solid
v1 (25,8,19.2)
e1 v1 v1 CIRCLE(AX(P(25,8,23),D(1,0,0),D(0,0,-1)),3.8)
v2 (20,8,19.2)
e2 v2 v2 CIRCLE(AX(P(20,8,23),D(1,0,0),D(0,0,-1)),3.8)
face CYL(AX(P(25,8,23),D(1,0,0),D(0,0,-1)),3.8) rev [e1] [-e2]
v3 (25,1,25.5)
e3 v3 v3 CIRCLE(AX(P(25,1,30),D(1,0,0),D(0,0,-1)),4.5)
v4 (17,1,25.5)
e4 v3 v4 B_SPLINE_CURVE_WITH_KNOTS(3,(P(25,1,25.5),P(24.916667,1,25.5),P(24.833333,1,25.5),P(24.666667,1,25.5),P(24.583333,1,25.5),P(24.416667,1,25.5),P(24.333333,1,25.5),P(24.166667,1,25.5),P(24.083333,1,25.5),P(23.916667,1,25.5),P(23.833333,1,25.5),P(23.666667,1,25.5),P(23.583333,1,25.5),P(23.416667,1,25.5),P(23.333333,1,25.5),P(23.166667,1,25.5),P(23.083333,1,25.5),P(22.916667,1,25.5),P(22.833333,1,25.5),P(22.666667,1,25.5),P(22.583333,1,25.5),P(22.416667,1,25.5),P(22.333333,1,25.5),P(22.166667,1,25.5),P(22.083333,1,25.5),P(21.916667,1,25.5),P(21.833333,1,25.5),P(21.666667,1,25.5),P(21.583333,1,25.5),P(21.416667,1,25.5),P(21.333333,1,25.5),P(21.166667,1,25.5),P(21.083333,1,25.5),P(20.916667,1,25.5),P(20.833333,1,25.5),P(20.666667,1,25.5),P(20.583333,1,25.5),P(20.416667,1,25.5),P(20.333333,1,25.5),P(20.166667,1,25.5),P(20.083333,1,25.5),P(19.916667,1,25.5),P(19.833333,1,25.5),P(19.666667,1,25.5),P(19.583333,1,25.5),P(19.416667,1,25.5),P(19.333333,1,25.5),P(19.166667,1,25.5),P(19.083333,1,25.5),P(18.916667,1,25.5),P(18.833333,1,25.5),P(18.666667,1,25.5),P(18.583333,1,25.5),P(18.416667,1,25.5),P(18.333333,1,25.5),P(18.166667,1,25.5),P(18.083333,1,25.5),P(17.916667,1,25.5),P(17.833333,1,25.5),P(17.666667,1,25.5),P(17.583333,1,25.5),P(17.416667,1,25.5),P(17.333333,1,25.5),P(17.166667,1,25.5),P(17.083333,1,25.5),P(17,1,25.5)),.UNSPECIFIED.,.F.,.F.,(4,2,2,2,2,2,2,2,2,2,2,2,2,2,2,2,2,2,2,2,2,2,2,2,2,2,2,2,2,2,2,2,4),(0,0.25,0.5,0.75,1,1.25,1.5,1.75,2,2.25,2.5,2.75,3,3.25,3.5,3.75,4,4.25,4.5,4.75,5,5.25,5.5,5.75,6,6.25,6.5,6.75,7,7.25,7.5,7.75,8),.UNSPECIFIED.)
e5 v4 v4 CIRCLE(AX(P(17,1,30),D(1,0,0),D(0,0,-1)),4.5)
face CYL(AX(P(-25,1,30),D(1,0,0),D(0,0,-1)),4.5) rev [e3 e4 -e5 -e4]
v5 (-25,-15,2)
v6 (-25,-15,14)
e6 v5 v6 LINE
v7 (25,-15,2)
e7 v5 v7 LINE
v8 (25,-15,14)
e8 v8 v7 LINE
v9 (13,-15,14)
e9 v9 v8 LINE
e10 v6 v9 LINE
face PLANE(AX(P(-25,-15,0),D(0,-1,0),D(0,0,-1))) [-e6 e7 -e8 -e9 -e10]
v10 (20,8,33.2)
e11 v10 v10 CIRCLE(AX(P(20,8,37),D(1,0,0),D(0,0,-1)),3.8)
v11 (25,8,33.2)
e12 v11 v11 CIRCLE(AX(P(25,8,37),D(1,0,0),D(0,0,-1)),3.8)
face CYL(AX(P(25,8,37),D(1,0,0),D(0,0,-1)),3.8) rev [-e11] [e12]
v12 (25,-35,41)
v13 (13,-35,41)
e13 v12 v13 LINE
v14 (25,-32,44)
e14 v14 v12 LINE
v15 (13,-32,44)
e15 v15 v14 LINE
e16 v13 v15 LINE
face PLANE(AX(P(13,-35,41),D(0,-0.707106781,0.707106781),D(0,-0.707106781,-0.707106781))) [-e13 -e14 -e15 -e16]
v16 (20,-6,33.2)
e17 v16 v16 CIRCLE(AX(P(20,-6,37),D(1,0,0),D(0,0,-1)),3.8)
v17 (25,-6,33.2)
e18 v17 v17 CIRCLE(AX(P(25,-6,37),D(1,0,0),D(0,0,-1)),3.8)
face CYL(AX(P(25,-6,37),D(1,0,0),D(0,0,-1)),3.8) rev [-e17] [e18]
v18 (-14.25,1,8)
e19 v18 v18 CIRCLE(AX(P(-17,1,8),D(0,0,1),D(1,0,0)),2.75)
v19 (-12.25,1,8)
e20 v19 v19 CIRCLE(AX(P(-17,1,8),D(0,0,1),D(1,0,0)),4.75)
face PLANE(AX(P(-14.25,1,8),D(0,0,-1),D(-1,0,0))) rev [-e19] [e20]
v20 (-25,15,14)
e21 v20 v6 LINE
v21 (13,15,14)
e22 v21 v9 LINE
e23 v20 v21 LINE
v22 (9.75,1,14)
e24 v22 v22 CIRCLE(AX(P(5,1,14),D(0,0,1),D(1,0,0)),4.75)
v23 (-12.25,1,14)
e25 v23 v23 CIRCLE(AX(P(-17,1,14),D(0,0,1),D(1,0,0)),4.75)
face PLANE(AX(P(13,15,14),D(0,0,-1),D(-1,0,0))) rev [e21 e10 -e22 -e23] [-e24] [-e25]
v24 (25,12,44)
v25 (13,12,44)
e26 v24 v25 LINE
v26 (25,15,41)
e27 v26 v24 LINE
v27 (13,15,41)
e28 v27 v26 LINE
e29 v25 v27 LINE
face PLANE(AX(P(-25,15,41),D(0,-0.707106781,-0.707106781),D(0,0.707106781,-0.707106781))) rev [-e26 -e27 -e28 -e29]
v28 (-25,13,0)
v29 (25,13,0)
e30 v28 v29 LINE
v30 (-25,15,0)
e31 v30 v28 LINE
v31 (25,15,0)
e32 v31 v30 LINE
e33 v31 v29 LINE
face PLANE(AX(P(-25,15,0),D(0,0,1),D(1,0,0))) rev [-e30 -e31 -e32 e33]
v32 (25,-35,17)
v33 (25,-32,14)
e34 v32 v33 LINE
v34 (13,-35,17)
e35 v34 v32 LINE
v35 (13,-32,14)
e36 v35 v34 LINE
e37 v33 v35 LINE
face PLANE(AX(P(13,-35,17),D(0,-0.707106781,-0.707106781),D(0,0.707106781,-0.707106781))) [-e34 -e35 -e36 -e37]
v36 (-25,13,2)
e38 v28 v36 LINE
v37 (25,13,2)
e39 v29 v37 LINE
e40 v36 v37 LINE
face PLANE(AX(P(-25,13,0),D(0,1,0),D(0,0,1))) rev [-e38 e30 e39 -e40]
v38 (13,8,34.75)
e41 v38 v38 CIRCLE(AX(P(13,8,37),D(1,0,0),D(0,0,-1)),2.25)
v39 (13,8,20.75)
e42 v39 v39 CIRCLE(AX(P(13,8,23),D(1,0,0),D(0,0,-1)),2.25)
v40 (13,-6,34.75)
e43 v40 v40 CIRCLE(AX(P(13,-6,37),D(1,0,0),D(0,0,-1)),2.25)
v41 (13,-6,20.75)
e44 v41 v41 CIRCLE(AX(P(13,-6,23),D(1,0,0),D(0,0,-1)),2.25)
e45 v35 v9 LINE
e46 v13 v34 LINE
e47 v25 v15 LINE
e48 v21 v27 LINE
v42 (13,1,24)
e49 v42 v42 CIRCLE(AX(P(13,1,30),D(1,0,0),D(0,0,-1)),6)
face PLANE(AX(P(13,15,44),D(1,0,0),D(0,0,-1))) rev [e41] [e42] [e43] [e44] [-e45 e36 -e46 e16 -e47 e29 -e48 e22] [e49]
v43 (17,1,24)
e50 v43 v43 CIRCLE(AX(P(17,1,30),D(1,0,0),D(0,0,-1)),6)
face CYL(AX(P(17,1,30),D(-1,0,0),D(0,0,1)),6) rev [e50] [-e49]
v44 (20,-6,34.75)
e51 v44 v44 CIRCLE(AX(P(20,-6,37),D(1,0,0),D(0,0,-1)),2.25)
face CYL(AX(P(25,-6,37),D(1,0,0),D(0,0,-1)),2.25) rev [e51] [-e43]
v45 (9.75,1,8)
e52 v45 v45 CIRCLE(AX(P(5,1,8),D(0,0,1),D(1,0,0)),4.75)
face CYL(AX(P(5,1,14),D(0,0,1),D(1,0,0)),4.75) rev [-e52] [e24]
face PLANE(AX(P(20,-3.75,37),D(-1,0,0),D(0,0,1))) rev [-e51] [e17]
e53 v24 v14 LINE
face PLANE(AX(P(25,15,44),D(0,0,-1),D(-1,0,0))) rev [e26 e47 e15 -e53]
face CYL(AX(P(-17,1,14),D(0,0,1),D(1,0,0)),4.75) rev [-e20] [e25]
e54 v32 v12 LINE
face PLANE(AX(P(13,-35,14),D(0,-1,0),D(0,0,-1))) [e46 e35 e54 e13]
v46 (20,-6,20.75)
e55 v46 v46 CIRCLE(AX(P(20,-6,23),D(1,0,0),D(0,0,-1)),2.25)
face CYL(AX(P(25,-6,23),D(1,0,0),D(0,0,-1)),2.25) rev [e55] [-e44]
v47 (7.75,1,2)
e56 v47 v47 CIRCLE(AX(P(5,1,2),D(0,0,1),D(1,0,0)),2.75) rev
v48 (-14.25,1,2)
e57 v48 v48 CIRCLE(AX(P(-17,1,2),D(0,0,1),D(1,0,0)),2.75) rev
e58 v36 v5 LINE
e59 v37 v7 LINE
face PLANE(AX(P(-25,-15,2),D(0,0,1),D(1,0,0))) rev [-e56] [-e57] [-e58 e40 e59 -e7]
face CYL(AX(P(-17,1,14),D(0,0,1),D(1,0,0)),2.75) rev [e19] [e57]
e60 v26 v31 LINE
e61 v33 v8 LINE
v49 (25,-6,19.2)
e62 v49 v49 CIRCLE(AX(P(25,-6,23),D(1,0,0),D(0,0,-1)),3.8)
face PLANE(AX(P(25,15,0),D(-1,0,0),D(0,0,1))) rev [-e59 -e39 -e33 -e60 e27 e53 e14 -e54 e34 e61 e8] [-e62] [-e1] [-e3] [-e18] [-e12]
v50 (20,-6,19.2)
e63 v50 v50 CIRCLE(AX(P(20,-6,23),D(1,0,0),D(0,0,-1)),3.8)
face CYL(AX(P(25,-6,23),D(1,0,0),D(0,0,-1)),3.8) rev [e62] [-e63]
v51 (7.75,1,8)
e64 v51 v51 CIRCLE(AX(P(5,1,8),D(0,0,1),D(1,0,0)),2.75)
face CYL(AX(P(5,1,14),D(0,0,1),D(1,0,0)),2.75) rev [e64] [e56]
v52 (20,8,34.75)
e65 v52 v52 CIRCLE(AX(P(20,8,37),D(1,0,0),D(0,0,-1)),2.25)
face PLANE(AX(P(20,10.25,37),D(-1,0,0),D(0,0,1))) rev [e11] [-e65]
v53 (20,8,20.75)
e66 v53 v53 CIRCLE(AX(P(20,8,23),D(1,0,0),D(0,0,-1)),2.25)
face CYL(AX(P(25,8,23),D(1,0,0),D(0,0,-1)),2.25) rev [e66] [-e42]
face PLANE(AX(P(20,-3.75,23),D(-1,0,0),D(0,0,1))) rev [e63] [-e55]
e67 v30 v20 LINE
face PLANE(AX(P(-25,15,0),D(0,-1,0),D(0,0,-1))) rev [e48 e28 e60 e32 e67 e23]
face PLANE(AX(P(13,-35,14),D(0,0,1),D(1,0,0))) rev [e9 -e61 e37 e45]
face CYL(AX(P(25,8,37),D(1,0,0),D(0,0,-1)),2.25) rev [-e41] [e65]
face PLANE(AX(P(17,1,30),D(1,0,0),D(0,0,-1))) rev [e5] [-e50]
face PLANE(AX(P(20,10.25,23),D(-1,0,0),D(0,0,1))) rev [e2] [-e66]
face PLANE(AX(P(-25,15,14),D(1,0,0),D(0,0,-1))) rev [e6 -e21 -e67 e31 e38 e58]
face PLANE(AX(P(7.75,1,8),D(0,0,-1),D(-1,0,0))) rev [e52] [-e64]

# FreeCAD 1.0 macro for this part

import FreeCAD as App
import Part
import Sketcher

V = App.Vector
Q = App.Units.Quantity


def edges_at(feature, points):
    """Names of the edges that pass closest to the given points."""
    edges = feature.Shape.Edges
    near = lambda p: min(range(len(edges)), key=lambda i: edges[i].distToShape(Part.Vertex(*p))[0])
    return sorted({f"Edge{near(p) + 1}" for p in points})


def add_polygon(sketch, points):
    """Adds a closed chain of lines whose ends are joined by coincident constraints."""
    first, n = sketch.GeometryCount, len(points)
    for a, b in zip(points, points[1:] + points[:1]):
        sketch.addGeometry(Part.LineSegment(App.Vector(*a, 0), App.Vector(*b, 0)), False)
    for i in range(n):
        sketch.addConstraint(Sketcher.Constraint("Coincident", first + i, 2, first + (i + 1) % n, 1))

doc = App.newDocument("Part")
body = doc.addObject("PartDesign::Body", "Body")

sketch1 = body.newObject("Sketcher::SketchObject", "Sketch")
sketch1.AttachmentSupport = (doc.getObject("XZ_Plane"), [""])
sketch1.MapMode = "FlatFace"
add_polygon(sketch1, [(25, 0), (-25, 0), (-25, 14), (13, 14), (13, 44), (25, 44)])
sketch1.addConstraint(Sketcher.Constraint("Horizontal", 0))
sketch1.addConstraint(Sketcher.Constraint("Vertical", 1))
sketch1.addConstraint(Sketcher.Constraint("Horizontal", 2))
sketch1.addConstraint(Sketcher.Constraint("Vertical", 3))
sketch1.addConstraint(Sketcher.Constraint("Horizontal", 4))
sketch1.addConstraint(Sketcher.Constraint("Vertical", 5))
sketch1.addConstraint(Sketcher.Constraint("Symmetric", 0, 2, 5, 2, -1, 1))
sketch1.addConstraint(Sketcher.Constraint("DistanceX", 0, 2, 0, 1, Q("50 mm")))
sketch1.addConstraint(Sketcher.Constraint("DistanceX", 2, 1, 2, 2, Q("38 mm")))
sketch1.addConstraint(Sketcher.Constraint("DistanceY", 1, 1, 1, 2, Q("14 mm")))
sketch1.addConstraint(Sketcher.Constraint("DistanceY", 3, 1, 3, 2, Q("30 mm")))
pad1 = body.newObject("PartDesign::Pad", "Pad")
pad1.Profile = sketch1
pad1.Length = 30
pad1.Midplane = True

sketch2 = body.newObject("Sketcher::SketchObject", "Sketch001")
sketch2.AttachmentSupport = (doc.getObject("YZ_Plane"), [""])
sketch2.MapMode = "FlatFace"
sketch2.AttachmentOffset = App.Placement(V(0, 0, 13), App.Rotation())
sketch2.addGeometry(Part.Circle(V(1, 30, 0), V(0, 0, 1), 6), False)
sketch2.addConstraint(Sketcher.Constraint("Diameter", 0, Q("12 mm")))
sketch2.addConstraint(Sketcher.Constraint("DistanceX", -1, 1, 0, 3, Q("1 mm")))
sketch2.addConstraint(Sketcher.Constraint("DistanceY", -1, 1, 0, 3, Q("30 mm")))
pocket1 = body.newObject("PartDesign::Pocket", "Pocket")
pocket1.Profile = sketch2
pocket1.Length = 4
pocket1.Reversed = True

sketch3 = body.newObject("Sketcher::SketchObject", "Sketch002")
sketch3.AttachmentSupport = (doc.getObject("YZ_Plane"), [""])
sketch3.MapMode = "FlatFace"
sketch3.AttachmentOffset = App.Placement(V(0, 0, 25), App.Rotation())
sketch3.addGeometry(Part.Circle(V(1, 30, 0), V(0, 0, 1), 4.5), False)
sketch3.addConstraint(Sketcher.Constraint("Diameter", 0, Q("9 mm")))
sketch3.addConstraint(Sketcher.Constraint("DistanceX", -1, 1, 0, 3, Q("1 mm")))
sketch3.addConstraint(Sketcher.Constraint("DistanceY", -1, 1, 0, 3, Q("30 mm")))
pocket2 = body.newObject("PartDesign::Pocket", "Pocket001")
pocket2.Profile = sketch3
pocket2.Type = "ThroughAll"

sketch4 = body.newObject("Sketcher::SketchObject", "Sketch003")
sketch4.AttachmentSupport = (doc.getObject("YZ_Plane"), [""])
sketch4.MapMode = "FlatFace"
sketch4.AttachmentOffset = App.Placement(V(0, 0, 25), App.Rotation())
sketch4.addGeometry(Part.Circle(V(8, 23, 0), V(0, 0, 1), 2.2), False)
sketch4.addGeometry(Part.Circle(V(8, 37, 0), V(0, 0, 1), 2.2), False)
sketch4.addGeometry(Part.Circle(V(-6, 23, 0), V(0, 0, 1), 2.2), False)
sketch4.addGeometry(Part.Circle(V(-6, 37, 0), V(0, 0, 1), 2.2), False)
sketch4.addConstraint(Sketcher.Constraint("Equal", 0, 1))
sketch4.addConstraint(Sketcher.Constraint("Equal", 1, 2))
sketch4.addConstraint(Sketcher.Constraint("Equal", 2, 3))
sketch4.addConstraint(Sketcher.Constraint("Horizontal", 0, 3, 2, 3))
sketch4.addConstraint(Sketcher.Constraint("Horizontal", 1, 3, 3, 3))
sketch4.addConstraint(Sketcher.Constraint("Vertical", 0, 3, 1, 3))
sketch4.addConstraint(Sketcher.Constraint("Vertical", 2, 3, 3, 3))
sketch4.addConstraint(Sketcher.Constraint("Diameter", 0, Q("4.5 mm")))
sketch4.addConstraint(Sketcher.Constraint("DistanceX", -1, 1, 0, 3, Q("8 mm")))
sketch4.addConstraint(Sketcher.Constraint("DistanceY", -1, 1, 0, 3, Q("23 mm")))
sketch4.addConstraint(Sketcher.Constraint("DistanceY", -1, 1, 1, 3, Q("37 mm")))
sketch4.addConstraint(Sketcher.Constraint("DistanceX", 2, 3, -1, 1, Q("6 mm")))
doc.recompute()
hole = body.newObject("PartDesign::Hole", "Hole")
hole.Profile = sketch4
hole.ThreadType = "None"
hole.Diameter = 4.5
hole.DepthType = "Dimension"
hole.Depth = 100
hole.DrillPoint = "Flat"
hole.HoleCutType = "Counterbore"
hole.HoleCutDiameter = 7.6
hole.HoleCutDepth = 5

sketch5 = body.newObject("Sketcher::SketchObject", "Sketch004")
sketch5.AttachmentSupport = (doc.getObject("XY_Plane"), [""])
sketch5.MapMode = "FlatFace"
sketch5.AttachmentOffset = App.Placement(V(0, 0, 14), App.Rotation())
sketch5.addGeometry(Part.Circle(V(5, 1, 0), V(0, 0, 1), 2.8), False)
sketch5.addGeometry(Part.Circle(V(-17, 1, 0), V(0, 0, 1), 2.8), False)
sketch5.addConstraint(Sketcher.Constraint("Equal", 0, 1))
sketch5.addConstraint(Sketcher.Constraint("Horizontal", 0, 3, 1, 3))
sketch5.addConstraint(Sketcher.Constraint("Diameter", 0, Q("5.5 mm")))
sketch5.addConstraint(Sketcher.Constraint("DistanceX", -1, 1, 0, 3, Q("5 mm")))
sketch5.addConstraint(Sketcher.Constraint("DistanceY", -1, 1, 0, 3, Q("1 mm")))
sketch5.addConstraint(Sketcher.Constraint("DistanceX", 1, 3, -1, 1, Q("17 mm")))
doc.recompute()
hole2 = body.newObject("PartDesign::Hole", "Hole001")
hole2.Profile = sketch5
hole2.ThreadType = "None"
hole2.Diameter = 5.5
hole2.DepthType = "Dimension"
hole2.Depth = 100
hole2.DrillPoint = "Flat"
hole2.HoleCutType = "Counterbore"
hole2.HoleCutDiameter = 9.5
hole2.HoleCutDepth = 6

sketch6 = body.newObject("Sketcher::SketchObject", "Sketch005")
sketch6.AttachmentSupport = (doc.getObject("XZ_Plane"), [""])
sketch6.MapMode = "FlatFace"
sketch6.AttachmentOffset = App.Placement(V(0, 0, 15), App.Rotation())
add_polygon(sketch6, [(13, 44), (13, 14), (25, 14), (25, 44)])
sketch6.addConstraint(Sketcher.Constraint("Vertical", 0))
sketch6.addConstraint(Sketcher.Constraint("Horizontal", 1))
sketch6.addConstraint(Sketcher.Constraint("Vertical", 2))
sketch6.addConstraint(Sketcher.Constraint("Horizontal", 3))
sketch6.addConstraint(Sketcher.Constraint("DistanceX", 1, 1, 1, 2, Q("12 mm")))
sketch6.addConstraint(Sketcher.Constraint("DistanceY", 0, 2, 0, 1, Q("30 mm")))
sketch6.addConstraint(Sketcher.Constraint("DistanceX", -1, 1, 0, 2, Q("13 mm")))
sketch6.addConstraint(Sketcher.Constraint("DistanceY", -1, 1, 0, 2, Q("14 mm")))
pad2 = body.newObject("PartDesign::Pad", "Pad001")
pad2.Profile = sketch6
pad2.Length = 20
doc.recompute()

chamfer = body.newObject("PartDesign::Chamfer", "Chamfer")
chamfer.Base = (pad2, edges_at(pad2, [(19, 15, 44), (19, -35, 44), (19, -35, 14)]))
chamfer.Size = 3

sketch7 = body.newObject("Sketcher::SketchObject", "Sketch006")
sketch7.AttachmentSupport = (doc.getObject("YZ_Plane"), [""])
sketch7.MapMode = "FlatFace"
sketch7.AttachmentOffset = App.Placement(V(0, 0, 25), App.Rotation())
add_polygon(sketch7, [(13, 2), (-15, 2), (-15, 0), (13, 0)])
sketch7.addConstraint(Sketcher.Constraint("Horizontal", 0))
sketch7.addConstraint(Sketcher.Constraint("Vertical", 1))
sketch7.addConstraint(Sketcher.Constraint("Horizontal", 2))
sketch7.addConstraint(Sketcher.Constraint("Vertical", 3))
sketch7.addConstraint(Sketcher.Constraint("PointOnObject", 1, 2, -1))
sketch7.addConstraint(Sketcher.Constraint("DistanceX", 0, 2, 0, 1, Q("28 mm")))
sketch7.addConstraint(Sketcher.Constraint("DistanceY", 1, 2, 1, 1, Q("2 mm")))
sketch7.addConstraint(Sketcher.Constraint("DistanceX", 0, 2, -1, 1, Q("15 mm")))
pocket3 = body.newObject("PartDesign::Pocket", "Pocket002")
pocket3.Profile = sketch7
pocket3.Type = "ThroughAll"

doc.recompute()
